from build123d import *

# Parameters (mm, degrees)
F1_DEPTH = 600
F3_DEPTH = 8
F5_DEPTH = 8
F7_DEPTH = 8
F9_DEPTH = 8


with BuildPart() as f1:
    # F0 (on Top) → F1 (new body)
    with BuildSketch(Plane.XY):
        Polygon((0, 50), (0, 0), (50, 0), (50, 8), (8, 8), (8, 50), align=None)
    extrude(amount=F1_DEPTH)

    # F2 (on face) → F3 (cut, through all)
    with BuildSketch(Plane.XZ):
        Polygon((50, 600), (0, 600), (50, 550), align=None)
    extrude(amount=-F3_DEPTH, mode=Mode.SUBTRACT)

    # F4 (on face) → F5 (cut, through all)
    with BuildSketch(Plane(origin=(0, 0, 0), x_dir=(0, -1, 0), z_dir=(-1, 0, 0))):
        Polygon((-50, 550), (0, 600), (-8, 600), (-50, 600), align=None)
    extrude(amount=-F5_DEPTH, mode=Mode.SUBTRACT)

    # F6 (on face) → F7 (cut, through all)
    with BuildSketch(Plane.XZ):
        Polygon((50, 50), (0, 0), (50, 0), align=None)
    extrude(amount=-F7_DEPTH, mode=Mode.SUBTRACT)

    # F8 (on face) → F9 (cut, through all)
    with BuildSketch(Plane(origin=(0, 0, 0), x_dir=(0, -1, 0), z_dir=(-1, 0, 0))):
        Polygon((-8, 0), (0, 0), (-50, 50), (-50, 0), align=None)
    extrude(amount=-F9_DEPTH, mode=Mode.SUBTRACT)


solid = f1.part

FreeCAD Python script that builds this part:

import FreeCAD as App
import Part
import Sketcher

V = App.Vector


def add_polygon(sketch, points):
    """Adds a closed chain of lines whose ends are joined by coincident constraints."""
    first, n = sketch.GeometryCount, len(points)
    for a, b in zip(points, points[1:] + points[:1]):
        sketch.addGeometry(Part.LineSegment(App.Vector(*a, 0), App.Vector(*b, 0)), False)
    for i in range(n):
        sketch.addConstraint(Sketcher.Constraint("Coincident", first + i, 2, first + (i + 1) % n, 1))

doc = App.newDocument("Part")
params = doc.addObject("Spreadsheet::Sheet", "Params")
for row, (alias, value) in enumerate([
    ("sketch1_width", "50 mm"),
    ("sketch1_width2", "42 mm"),
    ("pad1_length", "600 mm"),
    ("sketch2_width", "50 mm"),
    ("pocket1_length", "8 mm"),
    ("sketch3_width", "50 mm"),
    ("sketch4_width", "50 mm"),
    ("pocket3_length", "8 mm"),
    ("sketch5_width", "50 mm"),
], start=1):
    params.set(f"A{row}", alias)
    params.set(f"B{row}", "=" + value)
    params.setAlias(f"B{row}", alias)

body = doc.addObject("PartDesign::Body", "Body")

# Sketch on XY plane
sketch1 = body.newObject("Sketcher::SketchObject", "Sketch")
sketch1.AttachmentSupport = (doc.getObject("XY_Plane"), [""])
sketch1.MapMode = "FlatFace"
add_polygon(sketch1, [(0, 50), (0, 0), (50, 0), (50, 8), (8, 8), (8, 50)])  # lines 0-5
sketch1.addConstraint([
    Sketcher.Constraint("Vertical", 0),
    Sketcher.Constraint("Horizontal", 1),
    Sketcher.Constraint("Vertical", 2),
    Sketcher.Constraint("Horizontal", 3),
    Sketcher.Constraint("Vertical", 4),
    Sketcher.Constraint("Horizontal", 5),
    Sketcher.Constraint("Coincident", 0, 2, -1, 1),
    Sketcher.Constraint("Equal", 1, 0),
    Sketcher.Constraint("Equal", 5, 2),
    Sketcher.Constraint("DistanceX", 1, 1, 1, 2, 50.0),
    Sketcher.Constraint("DistanceX", 3, 2, 3, 1, 42.0),
])
sketch1.setExpression("Constraints[15]", "Params.sketch1_width")
sketch1.setExpression("Constraints[16]", "Params.sketch1_width2")
pad1 = body.newObject("PartDesign::Pad", "Pad")
pad1.Profile = sketch1
pad1.setExpression("Length", "Params.pad1_length")

# Sketch on XZ plane
sketch2 = body.newObject("Sketcher::SketchObject", "Sketch001")
sketch2.AttachmentSupport = (doc.getObject("XZ_Plane"), [""])
sketch2.MapMode = "FlatFace"
add_polygon(sketch2, [(50, 600), (0, 600), (50, 550)])  # lines 0-2
sketch2.addConstraint([
    Sketcher.Constraint("Horizontal", 0),
    Sketcher.Constraint("Vertical", 2),
    Sketcher.Constraint("PointOnObject", 0, 2, -2),
    Sketcher.Constraint("Equal", 0, 2),
    Sketcher.Constraint("DistanceX", 0, 2, 0, 1, 50.0),
    Sketcher.Constraint("DistanceY", -1, 1, 0, 2, 600.0),
])
sketch2.setExpression("Constraints[7]", "Params.sketch2_width")
pocket1 = body.newObject("PartDesign::Pocket", "Pocket")
pocket1.Profile = sketch2
pocket1.setExpression("Length", "Params.pocket1_length")

# Sketch on YZ plane
sketch3 = body.newObject("Sketcher::SketchObject", "Sketch002")
sketch3.AttachmentSupport = (doc.getObject("YZ_Plane"), [""])
sketch3.MapMode = "FlatFace"
add_polygon(sketch3, [(50, 550), (0, 600), (50, 600)])  # lines 0-2
sketch3.addConstraint([
    Sketcher.Constraint("Horizontal", 1),
    Sketcher.Constraint("Vertical", 2),
    Sketcher.Constraint("PointOnObject", 0, 2, -2),
    Sketcher.Constraint("Equal", 1, 2),
    Sketcher.Constraint("DistanceX", 1, 1, 1, 2, 50.0),
    Sketcher.Constraint("DistanceY", -1, 1, 0, 2, 600.0),
])
sketch3.setExpression("Constraints[7]", "Params.sketch3_width")
pocket2 = body.newObject("PartDesign::Pocket", "Pocket001")
pocket2.Profile = sketch3
pocket2.Type = "ThroughAll"
pocket2.Reversed = True

# Sketch on XZ plane
sketch4 = body.newObject("Sketcher::SketchObject", "Sketch003")
sketch4.AttachmentSupport = (doc.getObject("XZ_Plane"), [""])
sketch4.MapMode = "FlatFace"
add_polygon(sketch4, [(50, 50), (0, 0), (50, 0)])  # lines 0-2
sketch4.addConstraint([
    Sketcher.Constraint("Horizontal", 1),
    Sketcher.Constraint("Vertical", 2),
    Sketcher.Constraint("Coincident", 0, 2, -1, 1),
    Sketcher.Constraint("Equal", 1, 2),
    Sketcher.Constraint("DistanceX", 1, 1, 1, 2, 50.0),
])
sketch4.setExpression("Constraints[7]", "Params.sketch4_width")
pocket3 = body.newObject("PartDesign::Pocket", "Pocket002")
pocket3.Profile = sketch4
pocket3.setExpression("Length", "Params.pocket3_length")

# Sketch on YZ plane
sketch5 = body.newObject("Sketcher::SketchObject", "Sketch004")
sketch5.AttachmentSupport = (doc.getObject("YZ_Plane"), [""])
sketch5.MapMode = "FlatFace"
add_polygon(sketch5, [(0, 0), (50, 50), (50, 0)])  # lines 0-2
sketch5.addConstraint([
    Sketcher.Constraint("Vertical", 1),
    Sketcher.Constraint("Horizontal", 2),
    Sketcher.Constraint("Coincident", 2, 2, -1, 1),
    Sketcher.Constraint("Equal", 2, 1),
    Sketcher.Constraint("DistanceX", 2, 2, 2, 1, 50.0),
])
sketch5.setExpression("Constraints[7]", "Params.sketch5_width")
pocket4 = body.newObject("PartDesign::Pocket", "Pocket003")
pocket4.Profile = sketch5
pocket4.Type = "ThroughAll"
pocket4.Reversed = True

doc.recompute()
